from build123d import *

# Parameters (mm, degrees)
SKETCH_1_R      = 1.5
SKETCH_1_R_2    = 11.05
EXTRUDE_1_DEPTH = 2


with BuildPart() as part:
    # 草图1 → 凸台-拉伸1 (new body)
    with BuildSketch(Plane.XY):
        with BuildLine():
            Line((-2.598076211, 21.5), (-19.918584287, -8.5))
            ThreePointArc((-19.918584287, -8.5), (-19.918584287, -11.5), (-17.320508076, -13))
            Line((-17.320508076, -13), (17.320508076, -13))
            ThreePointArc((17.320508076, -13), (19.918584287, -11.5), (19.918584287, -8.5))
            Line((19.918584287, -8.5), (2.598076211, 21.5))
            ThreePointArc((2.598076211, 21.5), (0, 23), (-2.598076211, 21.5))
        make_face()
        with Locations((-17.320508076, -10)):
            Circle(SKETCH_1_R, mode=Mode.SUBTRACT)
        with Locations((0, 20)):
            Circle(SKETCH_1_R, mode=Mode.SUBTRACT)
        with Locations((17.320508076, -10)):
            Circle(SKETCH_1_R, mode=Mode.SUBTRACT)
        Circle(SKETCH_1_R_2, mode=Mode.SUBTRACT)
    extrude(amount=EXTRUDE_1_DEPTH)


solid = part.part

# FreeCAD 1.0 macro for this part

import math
import FreeCAD as App
import Part
import Sketcher
from FreeCAD import Vector
Q = App.Units.Quantity

doc = App.newDocument("Part")
params = doc.addObject("Spreadsheet::Sheet", "Params")
for row, (alias, value) in enumerate([
    ("sketch1_diameter", "3 mm"),
    ("sketch1_radius", "3 mm"),
    ("sketch1_diameter2", "22.1 mm"),
    ("pad1_length", "2 mm"),
], start=1):
    params.set(f"A{row}", alias)
    params.set(f"B{row}", "=" + value)
    params.setAlias(f"B{row}", alias)

body = doc.addObject("PartDesign::Body", "Body")

sketch1 = body.newObject("Sketcher::SketchObject", "Sketch")
sketch1.AttachmentSupport = (doc.getObject("XY_Plane"), [""])
sketch1.MapMode = "FlatFace"
sketch1.addGeometry(Part.LineSegment(Vector(-2.6, 21.5, 0), Vector(-19.9, -8.5, 0)), False)
sketch1.addGeometry(Part.ArcOfCircle(Part.Circle(Vector(-17.3, -10, 0), Vector(0, 0, 1), 3), math.radians(150), math.radians(270)), False)
sketch1.addGeometry(Part.LineSegment(Vector(-17.3, -13, 0), Vector(17.3, -13, 0)), False)
sketch1.addGeometry(Part.ArcOfCircle(Part.Circle(Vector(17.3, -10, 0), Vector(0, 0, 1), 3), math.radians(-90), math.radians(30)), False)
sketch1.addGeometry(Part.LineSegment(Vector(19.9, -8.5, 0), Vector(2.6, 21.5, 0)), False)
sketch1.addGeometry(Part.ArcOfCircle(Part.Circle(Vector(0, 20, 0), Vector(0, 0, 1), 3), math.radians(30), math.radians(150)), False)
sketch1.addGeometry(Part.Circle(Vector(-17.3, -10, 0), Vector(0, 0, 1), 1.5), False)
sketch1.addGeometry(Part.Circle(Vector(17.3, -10, 0), Vector(0, 0, 1), 1.5), False)
sketch1.addGeometry(Part.Circle(Vector(0, 0, 0), Vector(0, 0, 1), 11.1), False)
sketch1.addGeometry(Part.Circle(Vector(0, 20, 0), Vector(0, 0, 1), 1.5), False)
sketch1.addConstraint(Sketcher.Constraint("Tangent", 0, 2, 1, 1))
sketch1.addConstraint(Sketcher.Constraint("Tangent", 1, 2, 2, 1))
sketch1.addConstraint(Sketcher.Constraint("Tangent", 2, 2, 3, 1))
sketch1.addConstraint(Sketcher.Constraint("Tangent", 3, 2, 4, 1))
sketch1.addConstraint(Sketcher.Constraint("Tangent", 4, 2, 5, 1))
sketch1.addConstraint(Sketcher.Constraint("Tangent", 5, 2, 0, 1))
sketch1.addConstraint(Sketcher.Constraint("Horizontal", 2))
sketch1.addConstraint(Sketcher.Constraint("Coincident", 8, 3, -1, 1))
sketch1.addConstraint(Sketcher.Constraint("Coincident", 6, 3, 1, 3))
sketch1.addConstraint(Sketcher.Constraint("Coincident", 7, 3, 3, 3))
sketch1.addConstraint(Sketcher.Constraint("Coincident", 9, 3, 5, 3))
sketch1.addConstraint(Sketcher.Constraint("Equal", 1, 3))
sketch1.addConstraint(Sketcher.Constraint("Equal", 3, 5))
sketch1.addConstraint(Sketcher.Constraint("Equal", 6, 7))
sketch1.addConstraint(Sketcher.Constraint("Equal", 7, 9))
sketch1.addConstraint(Sketcher.Constraint("Symmetric", 0, 2, 3, 2, -2))
sketch1.addConstraint(Sketcher.Constraint("Diameter", 6, Q("3 mm")))
sketch1.addConstraint(Sketcher.Constraint("Radius", 1, Q("3 mm")))
sketch1.addConstraint(Sketcher.Constraint("Diameter", 8, Q("22.1 mm")))
sketch1.addConstraint(Sketcher.Constraint("Angle", 0, Q("-120 deg")))
sketch1.addConstraint(Sketcher.Constraint("DistanceY", 1, 3, -1, 1, Q("10 mm")))
sketch1.addConstraint(Sketcher.Constraint("DistanceY", -1, 1, 5, 3, Q("20 mm")))
sketch1.setExpression("Constraints[16]", "Params.sketch1_diameter")
sketch1.setExpression("Constraints[17]", "Params.sketch1_radius")
sketch1.setExpression("Constraints[18]", "Params.sketch1_diameter2")
pad1 = body.newObject("PartDesign::Pad", "Pad")
pad1.Profile = sketch1
pad1.setExpression("Length", "Params.pad1_length")

doc.recompute()
